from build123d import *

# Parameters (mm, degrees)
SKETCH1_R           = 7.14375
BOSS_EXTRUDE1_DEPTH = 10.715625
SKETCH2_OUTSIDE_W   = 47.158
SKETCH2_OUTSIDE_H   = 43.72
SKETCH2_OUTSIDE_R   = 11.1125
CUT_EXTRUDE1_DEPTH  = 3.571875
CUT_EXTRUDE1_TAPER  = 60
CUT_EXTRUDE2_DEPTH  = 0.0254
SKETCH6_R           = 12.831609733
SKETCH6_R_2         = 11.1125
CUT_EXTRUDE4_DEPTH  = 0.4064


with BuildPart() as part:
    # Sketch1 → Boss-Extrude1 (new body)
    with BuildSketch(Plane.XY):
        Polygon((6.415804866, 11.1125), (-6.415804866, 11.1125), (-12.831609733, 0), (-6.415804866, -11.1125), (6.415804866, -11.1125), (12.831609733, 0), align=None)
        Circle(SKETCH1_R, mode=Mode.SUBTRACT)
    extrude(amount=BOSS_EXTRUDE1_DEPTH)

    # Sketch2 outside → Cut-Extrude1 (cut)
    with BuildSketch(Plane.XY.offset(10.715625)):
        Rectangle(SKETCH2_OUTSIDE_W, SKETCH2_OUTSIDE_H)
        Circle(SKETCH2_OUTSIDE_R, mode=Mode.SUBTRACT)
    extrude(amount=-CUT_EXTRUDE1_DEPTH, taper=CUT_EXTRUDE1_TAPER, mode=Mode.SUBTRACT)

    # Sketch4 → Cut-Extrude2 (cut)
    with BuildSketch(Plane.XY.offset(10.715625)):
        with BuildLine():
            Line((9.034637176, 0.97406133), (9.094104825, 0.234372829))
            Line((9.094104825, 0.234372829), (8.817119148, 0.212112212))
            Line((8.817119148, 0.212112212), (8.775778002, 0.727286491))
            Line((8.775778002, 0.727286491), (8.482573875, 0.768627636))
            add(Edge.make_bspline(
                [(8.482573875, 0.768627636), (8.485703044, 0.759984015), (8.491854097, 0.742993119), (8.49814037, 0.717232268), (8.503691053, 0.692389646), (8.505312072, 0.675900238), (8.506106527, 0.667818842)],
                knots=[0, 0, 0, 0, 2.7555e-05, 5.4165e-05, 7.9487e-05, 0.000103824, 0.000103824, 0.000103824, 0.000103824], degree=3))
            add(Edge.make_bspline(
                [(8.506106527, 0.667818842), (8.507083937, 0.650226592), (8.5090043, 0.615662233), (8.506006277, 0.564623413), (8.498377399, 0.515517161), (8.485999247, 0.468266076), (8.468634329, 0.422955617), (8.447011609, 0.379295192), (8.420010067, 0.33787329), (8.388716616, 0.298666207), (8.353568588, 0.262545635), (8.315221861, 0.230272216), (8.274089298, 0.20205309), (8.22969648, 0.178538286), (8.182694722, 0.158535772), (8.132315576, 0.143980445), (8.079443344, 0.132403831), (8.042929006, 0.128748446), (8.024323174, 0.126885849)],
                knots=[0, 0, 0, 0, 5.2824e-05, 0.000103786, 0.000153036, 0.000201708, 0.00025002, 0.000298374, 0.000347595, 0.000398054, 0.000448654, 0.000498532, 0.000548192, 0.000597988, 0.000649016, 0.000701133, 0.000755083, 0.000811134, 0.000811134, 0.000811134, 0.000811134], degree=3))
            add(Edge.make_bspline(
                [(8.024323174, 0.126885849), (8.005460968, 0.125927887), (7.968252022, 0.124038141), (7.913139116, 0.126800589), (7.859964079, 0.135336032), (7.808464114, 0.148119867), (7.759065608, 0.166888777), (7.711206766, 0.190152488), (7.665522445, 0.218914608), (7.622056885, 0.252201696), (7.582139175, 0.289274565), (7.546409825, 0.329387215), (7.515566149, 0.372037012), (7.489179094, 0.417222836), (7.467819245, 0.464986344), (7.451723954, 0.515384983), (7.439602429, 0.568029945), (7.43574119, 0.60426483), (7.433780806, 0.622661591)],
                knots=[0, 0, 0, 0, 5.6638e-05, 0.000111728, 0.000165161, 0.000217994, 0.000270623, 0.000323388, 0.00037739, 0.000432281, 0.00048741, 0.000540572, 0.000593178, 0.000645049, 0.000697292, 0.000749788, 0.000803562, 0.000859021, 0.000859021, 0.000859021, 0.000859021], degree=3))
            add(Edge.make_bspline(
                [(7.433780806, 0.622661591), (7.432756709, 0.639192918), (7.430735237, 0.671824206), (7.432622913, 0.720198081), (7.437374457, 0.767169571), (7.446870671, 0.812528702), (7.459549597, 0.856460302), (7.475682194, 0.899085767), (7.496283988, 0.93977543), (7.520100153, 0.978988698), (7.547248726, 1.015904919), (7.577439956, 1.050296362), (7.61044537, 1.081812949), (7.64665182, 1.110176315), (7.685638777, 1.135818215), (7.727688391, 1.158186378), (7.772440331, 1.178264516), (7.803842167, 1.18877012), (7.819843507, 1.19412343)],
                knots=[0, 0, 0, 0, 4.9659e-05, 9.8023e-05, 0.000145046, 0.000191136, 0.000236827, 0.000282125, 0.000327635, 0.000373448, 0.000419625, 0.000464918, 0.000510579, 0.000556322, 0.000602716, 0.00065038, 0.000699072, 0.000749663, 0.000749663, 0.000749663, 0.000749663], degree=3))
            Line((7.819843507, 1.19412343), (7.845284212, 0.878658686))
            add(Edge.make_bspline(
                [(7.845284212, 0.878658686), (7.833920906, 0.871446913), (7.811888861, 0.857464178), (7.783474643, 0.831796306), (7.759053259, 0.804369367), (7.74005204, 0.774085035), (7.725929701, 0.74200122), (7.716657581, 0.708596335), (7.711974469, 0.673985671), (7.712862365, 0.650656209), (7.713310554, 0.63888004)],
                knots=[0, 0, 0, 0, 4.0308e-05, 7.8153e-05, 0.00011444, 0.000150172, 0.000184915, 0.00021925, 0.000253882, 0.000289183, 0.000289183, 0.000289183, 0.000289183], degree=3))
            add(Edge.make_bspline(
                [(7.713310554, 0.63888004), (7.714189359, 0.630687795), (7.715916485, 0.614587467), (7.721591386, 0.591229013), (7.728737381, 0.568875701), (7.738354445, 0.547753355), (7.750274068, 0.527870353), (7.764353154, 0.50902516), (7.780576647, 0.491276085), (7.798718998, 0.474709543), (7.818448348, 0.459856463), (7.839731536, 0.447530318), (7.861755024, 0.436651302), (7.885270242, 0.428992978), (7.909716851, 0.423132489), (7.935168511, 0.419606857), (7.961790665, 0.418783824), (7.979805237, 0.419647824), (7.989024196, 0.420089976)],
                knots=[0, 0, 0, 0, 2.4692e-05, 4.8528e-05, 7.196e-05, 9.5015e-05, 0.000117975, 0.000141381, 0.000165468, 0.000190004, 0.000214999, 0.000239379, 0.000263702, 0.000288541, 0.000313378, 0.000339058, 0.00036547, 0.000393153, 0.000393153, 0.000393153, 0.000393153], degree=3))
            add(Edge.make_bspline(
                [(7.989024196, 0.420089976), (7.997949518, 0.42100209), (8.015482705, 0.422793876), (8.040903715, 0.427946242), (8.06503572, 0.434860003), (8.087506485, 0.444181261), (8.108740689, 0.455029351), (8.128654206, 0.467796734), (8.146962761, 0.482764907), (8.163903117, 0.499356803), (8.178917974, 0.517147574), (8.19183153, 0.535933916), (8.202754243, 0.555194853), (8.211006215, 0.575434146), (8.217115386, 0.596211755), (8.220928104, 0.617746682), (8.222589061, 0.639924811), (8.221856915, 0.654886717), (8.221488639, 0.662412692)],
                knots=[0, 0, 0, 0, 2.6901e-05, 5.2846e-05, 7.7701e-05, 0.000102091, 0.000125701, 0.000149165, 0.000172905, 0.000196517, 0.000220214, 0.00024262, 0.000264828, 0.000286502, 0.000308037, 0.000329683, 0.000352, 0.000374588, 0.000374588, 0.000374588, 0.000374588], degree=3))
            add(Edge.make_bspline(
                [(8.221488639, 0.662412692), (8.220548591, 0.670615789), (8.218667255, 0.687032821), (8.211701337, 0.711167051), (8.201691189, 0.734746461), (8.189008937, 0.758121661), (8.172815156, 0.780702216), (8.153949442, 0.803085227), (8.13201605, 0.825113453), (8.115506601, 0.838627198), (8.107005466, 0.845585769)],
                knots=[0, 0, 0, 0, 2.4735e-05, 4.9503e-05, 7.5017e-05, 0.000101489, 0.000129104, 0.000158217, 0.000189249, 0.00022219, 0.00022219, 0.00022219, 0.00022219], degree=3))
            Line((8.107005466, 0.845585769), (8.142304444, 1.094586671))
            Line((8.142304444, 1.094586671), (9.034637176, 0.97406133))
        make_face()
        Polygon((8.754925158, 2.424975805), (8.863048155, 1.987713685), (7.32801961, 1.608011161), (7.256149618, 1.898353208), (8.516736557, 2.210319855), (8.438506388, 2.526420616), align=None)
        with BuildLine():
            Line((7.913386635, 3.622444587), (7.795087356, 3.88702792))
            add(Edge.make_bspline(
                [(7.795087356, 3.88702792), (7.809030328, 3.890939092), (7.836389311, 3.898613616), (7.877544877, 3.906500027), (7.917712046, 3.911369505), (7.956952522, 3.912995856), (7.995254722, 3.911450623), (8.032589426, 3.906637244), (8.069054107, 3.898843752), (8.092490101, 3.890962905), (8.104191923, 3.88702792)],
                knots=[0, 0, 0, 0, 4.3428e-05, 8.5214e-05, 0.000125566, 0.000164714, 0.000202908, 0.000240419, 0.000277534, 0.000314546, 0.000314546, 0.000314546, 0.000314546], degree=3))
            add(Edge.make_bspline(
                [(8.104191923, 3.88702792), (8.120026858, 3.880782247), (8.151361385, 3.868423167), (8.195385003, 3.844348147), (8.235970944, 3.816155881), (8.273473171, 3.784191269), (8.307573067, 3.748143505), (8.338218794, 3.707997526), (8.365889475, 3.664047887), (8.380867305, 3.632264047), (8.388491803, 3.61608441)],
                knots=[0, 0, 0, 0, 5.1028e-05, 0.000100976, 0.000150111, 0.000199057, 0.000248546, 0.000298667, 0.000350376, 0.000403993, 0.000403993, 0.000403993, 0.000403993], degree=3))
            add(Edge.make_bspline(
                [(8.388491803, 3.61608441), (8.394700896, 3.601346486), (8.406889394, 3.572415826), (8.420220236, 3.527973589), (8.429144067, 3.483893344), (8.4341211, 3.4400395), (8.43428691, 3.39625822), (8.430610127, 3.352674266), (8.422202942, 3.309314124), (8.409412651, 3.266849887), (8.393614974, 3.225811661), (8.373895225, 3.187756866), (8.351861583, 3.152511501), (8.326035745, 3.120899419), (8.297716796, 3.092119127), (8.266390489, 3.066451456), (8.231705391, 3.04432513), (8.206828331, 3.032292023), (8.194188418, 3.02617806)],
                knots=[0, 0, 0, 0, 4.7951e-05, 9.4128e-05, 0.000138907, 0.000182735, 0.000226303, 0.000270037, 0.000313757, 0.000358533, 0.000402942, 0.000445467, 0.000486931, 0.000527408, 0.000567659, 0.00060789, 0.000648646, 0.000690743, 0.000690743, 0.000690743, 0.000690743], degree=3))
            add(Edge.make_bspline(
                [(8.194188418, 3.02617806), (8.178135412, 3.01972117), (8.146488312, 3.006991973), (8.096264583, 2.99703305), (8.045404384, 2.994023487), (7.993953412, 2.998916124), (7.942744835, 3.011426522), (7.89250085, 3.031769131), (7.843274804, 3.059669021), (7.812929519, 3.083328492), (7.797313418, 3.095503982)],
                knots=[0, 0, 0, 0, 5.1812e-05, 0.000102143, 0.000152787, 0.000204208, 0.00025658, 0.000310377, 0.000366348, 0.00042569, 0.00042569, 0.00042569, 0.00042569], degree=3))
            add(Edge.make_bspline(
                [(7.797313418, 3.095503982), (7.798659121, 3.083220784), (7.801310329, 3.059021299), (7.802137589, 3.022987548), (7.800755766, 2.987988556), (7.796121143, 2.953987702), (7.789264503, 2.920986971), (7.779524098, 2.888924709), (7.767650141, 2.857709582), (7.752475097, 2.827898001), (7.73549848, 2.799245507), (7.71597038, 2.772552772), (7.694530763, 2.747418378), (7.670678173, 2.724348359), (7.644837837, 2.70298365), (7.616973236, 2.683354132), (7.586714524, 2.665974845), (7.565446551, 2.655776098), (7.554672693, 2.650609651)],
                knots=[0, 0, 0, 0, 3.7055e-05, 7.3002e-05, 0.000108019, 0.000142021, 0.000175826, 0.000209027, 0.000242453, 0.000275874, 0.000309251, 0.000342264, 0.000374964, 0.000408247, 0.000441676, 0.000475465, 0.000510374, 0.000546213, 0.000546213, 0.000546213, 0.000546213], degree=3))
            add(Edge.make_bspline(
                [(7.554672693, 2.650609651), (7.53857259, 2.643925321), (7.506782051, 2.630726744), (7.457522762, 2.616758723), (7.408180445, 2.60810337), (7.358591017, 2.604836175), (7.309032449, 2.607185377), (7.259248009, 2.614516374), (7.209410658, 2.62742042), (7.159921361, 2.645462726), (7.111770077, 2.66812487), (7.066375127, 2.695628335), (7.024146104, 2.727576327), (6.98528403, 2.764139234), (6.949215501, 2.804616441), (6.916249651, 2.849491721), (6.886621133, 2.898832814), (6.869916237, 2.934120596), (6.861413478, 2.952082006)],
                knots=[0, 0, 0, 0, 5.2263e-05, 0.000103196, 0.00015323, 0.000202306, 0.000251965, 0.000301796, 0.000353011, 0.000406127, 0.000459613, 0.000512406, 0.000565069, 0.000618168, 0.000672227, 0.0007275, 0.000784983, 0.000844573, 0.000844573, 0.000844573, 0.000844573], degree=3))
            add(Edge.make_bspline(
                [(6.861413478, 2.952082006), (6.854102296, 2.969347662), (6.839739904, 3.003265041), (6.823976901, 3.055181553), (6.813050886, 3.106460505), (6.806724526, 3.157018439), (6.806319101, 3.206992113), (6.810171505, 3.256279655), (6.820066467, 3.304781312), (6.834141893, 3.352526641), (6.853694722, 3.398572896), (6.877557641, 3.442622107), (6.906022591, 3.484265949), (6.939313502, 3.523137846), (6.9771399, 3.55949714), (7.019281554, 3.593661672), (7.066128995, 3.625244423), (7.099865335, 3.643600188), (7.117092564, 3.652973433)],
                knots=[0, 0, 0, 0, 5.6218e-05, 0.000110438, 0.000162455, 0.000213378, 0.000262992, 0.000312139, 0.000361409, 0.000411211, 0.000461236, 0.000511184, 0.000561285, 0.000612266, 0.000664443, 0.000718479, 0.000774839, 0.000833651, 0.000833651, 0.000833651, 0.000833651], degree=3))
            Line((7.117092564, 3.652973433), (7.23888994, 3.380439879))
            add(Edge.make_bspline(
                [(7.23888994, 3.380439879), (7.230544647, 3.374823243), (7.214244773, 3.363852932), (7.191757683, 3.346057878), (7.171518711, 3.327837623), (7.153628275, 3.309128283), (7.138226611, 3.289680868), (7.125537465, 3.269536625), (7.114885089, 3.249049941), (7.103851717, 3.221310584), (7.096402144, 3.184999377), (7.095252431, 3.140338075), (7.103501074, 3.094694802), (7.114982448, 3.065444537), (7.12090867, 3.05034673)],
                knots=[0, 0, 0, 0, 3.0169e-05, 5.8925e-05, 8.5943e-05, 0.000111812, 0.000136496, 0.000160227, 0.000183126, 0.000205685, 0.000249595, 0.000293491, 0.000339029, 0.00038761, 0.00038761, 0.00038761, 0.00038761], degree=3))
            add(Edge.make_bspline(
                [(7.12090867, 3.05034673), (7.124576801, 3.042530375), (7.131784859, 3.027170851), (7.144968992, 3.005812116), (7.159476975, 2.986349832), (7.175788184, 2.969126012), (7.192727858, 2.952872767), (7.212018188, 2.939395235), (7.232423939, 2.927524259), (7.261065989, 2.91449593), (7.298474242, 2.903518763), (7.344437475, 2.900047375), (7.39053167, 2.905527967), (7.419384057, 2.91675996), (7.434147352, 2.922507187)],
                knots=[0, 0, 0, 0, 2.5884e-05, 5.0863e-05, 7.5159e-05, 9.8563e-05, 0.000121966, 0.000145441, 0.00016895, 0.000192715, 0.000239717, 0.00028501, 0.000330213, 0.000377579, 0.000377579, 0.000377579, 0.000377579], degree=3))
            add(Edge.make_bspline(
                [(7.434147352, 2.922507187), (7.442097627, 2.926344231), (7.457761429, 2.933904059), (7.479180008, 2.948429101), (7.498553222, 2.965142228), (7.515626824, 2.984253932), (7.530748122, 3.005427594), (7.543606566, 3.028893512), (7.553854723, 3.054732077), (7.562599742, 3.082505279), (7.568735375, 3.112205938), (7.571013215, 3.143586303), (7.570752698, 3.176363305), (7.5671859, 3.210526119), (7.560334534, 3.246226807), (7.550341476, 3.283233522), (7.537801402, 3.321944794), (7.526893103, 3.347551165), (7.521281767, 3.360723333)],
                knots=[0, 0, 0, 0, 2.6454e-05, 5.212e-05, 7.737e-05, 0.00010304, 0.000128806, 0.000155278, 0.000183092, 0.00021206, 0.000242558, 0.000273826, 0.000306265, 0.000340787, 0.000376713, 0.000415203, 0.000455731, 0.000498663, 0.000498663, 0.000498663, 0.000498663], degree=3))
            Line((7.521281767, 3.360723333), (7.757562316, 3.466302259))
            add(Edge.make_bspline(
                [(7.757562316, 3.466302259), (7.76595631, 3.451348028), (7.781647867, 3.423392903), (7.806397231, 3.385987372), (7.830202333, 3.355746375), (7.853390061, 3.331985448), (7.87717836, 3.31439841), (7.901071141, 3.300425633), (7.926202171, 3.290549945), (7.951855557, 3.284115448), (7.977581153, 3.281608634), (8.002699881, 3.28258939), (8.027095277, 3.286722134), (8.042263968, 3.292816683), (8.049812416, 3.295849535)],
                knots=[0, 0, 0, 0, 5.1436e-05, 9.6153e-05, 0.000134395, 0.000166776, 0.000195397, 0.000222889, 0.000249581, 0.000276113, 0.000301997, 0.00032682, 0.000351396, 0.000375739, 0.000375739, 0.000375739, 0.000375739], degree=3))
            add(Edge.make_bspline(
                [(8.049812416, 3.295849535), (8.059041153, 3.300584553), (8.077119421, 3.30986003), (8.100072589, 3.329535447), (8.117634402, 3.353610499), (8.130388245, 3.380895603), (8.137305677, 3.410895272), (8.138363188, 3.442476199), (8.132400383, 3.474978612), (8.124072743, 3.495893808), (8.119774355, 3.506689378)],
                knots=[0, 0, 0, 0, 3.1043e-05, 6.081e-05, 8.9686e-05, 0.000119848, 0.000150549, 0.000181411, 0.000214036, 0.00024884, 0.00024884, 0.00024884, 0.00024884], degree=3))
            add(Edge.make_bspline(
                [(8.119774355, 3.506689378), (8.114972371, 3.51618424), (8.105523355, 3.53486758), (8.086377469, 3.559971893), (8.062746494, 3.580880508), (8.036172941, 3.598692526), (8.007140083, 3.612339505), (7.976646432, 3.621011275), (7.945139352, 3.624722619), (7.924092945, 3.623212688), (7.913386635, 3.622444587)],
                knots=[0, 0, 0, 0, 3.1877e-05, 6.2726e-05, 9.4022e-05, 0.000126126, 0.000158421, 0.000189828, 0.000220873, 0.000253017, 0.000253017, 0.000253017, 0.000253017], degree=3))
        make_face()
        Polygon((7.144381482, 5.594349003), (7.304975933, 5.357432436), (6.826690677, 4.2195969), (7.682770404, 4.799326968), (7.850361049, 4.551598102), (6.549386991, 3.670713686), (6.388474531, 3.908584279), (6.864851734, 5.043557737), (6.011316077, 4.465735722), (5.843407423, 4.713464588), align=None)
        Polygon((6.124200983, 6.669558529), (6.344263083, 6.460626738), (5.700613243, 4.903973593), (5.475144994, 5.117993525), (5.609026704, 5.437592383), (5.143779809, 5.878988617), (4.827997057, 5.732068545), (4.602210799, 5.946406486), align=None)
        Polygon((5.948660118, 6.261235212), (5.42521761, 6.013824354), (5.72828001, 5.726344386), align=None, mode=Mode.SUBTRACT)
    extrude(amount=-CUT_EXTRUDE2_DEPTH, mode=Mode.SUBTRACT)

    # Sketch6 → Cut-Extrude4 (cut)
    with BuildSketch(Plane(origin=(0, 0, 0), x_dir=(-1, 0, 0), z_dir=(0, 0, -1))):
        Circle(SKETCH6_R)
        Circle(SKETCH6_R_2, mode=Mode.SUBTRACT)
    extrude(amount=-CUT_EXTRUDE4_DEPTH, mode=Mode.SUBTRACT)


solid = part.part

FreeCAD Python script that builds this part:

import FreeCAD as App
import Part
import Sketcher
Q = App.Units.Quantity


def add_polygon(sketch, points):
    """Adds a closed chain of lines whose ends are joined by coincident constraints."""
    first, n = sketch.GeometryCount, len(points)
    for a, b in zip(points, points[1:] + points[:1]):
        sketch.addGeometry(Part.LineSegment(App.Vector(*a, 0), App.Vector(*b, 0)), False)
    for i in range(n):
        sketch.addConstraint(Sketcher.Constraint("Coincident", first + i, 2, first + (i + 1) % n, 1))

doc = App.newDocument("Part")
body = doc.addObject("PartDesign::Body", "Body")

sketch1 = body.newObject("Sketcher::SketchObject", "Sketch")
sketch1.AttachmentSupport = (doc.getObject("XY_Plane"), [""])
sketch1.MapMode = "FlatFace"
add_polygon(sketch1, [(6, 11), (-6, 11), (-13, 0), (-6, -11), (6, -11), (13, 0)])
sketch1.addGeometry(Part.Circle(App.Vector(0, 0, 0), App.Vector(0, 0, 1), 7), False)
sketch1.addConstraint([
    Sketcher.Constraint("Horizontal", 0),
    Sketcher.Constraint("Horizontal", 3),
    Sketcher.Constraint("Coincident", 6, 3, -1, 1),
    Sketcher.Constraint("Symmetric", 0, 2, 3, 2, -1, 1),
    Sketcher.Constraint("Symmetric", 1, 2, 4, 2, -1, 1),
    Sketcher.Constraint("PointOnObject", 1, 2, -1),
    Sketcher.Constraint("Parallel", 2, 5),
    Sketcher.Constraint("Vertical", 0, 2, 2, 2),
    Sketcher.Constraint("Diameter", 6, Q("0.5625 in")),
    Sketcher.Constraint("Angle", 1, Q("-120 deg")),
    Sketcher.Constraint("DistanceY", -1, 1, 0, 2, Q("0.4375 in")),
    Sketcher.Constraint("DistanceX", 0, 2, 0, 1, 12.83161),
])
pad1 = body.newObject("PartDesign::Pad", "Pad")
pad1.Profile = sketch1
pad1.Length = Q("0.421875 in")

sketch2 = body.newObject("Sketcher::SketchObject", "Sketch001")
sketch2.AttachmentSupport = (doc.getObject("XY_Plane"), [""])
sketch2.MapMode = "FlatFace"
sketch2.AttachmentOffset = App.Placement(App.Vector(0, 0, 0.421875 * 25.4), App.Rotation())
add_polygon(sketch2, [(-24, 22), (-24, -22), (24, -22), (24, 22)])
sketch2.addGeometry(Part.Circle(App.Vector(0, 0, 0), App.Vector(0, 0, 1), 11), False)
sketch2.addConstraint([
    Sketcher.Constraint("Vertical", 0),
    Sketcher.Constraint("Horizontal", 1),
    Sketcher.Constraint("Vertical", 2),
    Sketcher.Constraint("Horizontal", 3),
    Sketcher.Constraint("Coincident", 4, 3, -1, 1),
    Sketcher.Constraint("Symmetric", 0, 2, 2, 2, -1, 1),
    Sketcher.Constraint("Diameter", 4, Q("0.875 in")),
    Sketcher.Constraint("DistanceX", 1, 1, 1, 2, 47.158),
    Sketcher.Constraint("DistanceY", 0, 2, 0, 1, 43.72),
])
pocket1 = body.newObject("PartDesign::Pocket", "Pocket")
pocket1.Profile = sketch2
pocket1.Length = Q("0.140625 in")
pocket1.TaperAngle = 60

sketch3 = body.newObject("Sketcher::SketchObject", "Sketch002")
sketch3.AttachmentSupport = (doc.getObject("XY_Plane"), [""])
sketch3.MapMode = "FlatFace"
sketch3.AttachmentOffset = App.Placement(App.Vector(0, 0, 0.421875 * 25.4), App.Rotation())
sketch3.addGeometry(Part.LineSegment(App.Vector(9.094105, 0.234373, 0), App.Vector(9.034637, 0.974061, 0)), False)
sketch3.addGeometry(Part.LineSegment(App.Vector(9.034637, 0.974061, 0), App.Vector(8.142304, 1.094587, 0)), False)
sketch3.addGeometry(Part.LineSegment(App.Vector(8.142304, 1.094587, 0), App.Vector(8.107005, 0.845586, 0)), False)
sketch3.addGeometry(Part.BSplineCurve([App.Vector(8.221489, 0.662413, 0), App.Vector(8.220549, 0.670616, 0), App.Vector(8.218667, 0.687033, 0), App.Vector(8.211701, 0.711167, 0), App.Vector(8.201691, 0.734746, 0), App.Vector(8.189009, 0.758122, 0), App.Vector(8.172815, 0.780702, 0), App.Vector(8.153949, 0.803085, 0), App.Vector(8.132016, 0.825113, 0), App.Vector(8.115507, 0.838627, 0), App.Vector(8.107005, 0.845586, 0)], [4, 1, 1, 1, 1, 1, 1, 1, 4], [0, 0.000024735, 0.000049503, 0.000075017, 0.000101489, 0.000129104, 0.000158217, 0.000189249, 0.00022219], False, 3, [1, 1, 1, 1, 1, 1, 1, 1, 1, 1, 1], False), False)
sketch3.addGeometry(Part.BSplineCurve([App.Vector(7.989024, 0.42009, 0), App.Vector(7.99795, 0.421002, 0), App.Vector(8.015483, 0.422794, 0), App.Vector(8.040904, 0.427946, 0), App.Vector(8.065036, 0.43486, 0), App.Vector(8.087506, 0.444181, 0), App.Vector(8.108741, 0.455029, 0), App.Vector(8.128654, 0.467797, 0), App.Vector(8.146963, 0.482765, 0), App.Vector(8.163903, 0.499357, 0), App.Vector(8.178918, 0.517148, 0), App.Vector(8.191832, 0.535934, 0), App.Vector(8.202754, 0.555195, 0), App.Vector(8.211006, 0.575434, 0), App.Vector(8.217115, 0.596212, 0), App.Vector(8.220928, 0.617747, 0), App.Vector(8.222589, 0.639925, 0), App.Vector(8.221857, 0.654887, 0), App.Vector(8.221489, 0.662413, 0)], [4, 1, 1, 1, 1, 1, 1, 1, 1, 1, 1, 1, 1, 1, 1, 1, 4], [0, 0.000026901, 0.000052846, 0.000077701, 0.000102091, 0.000125701, 0.000149165, 0.000172905, 0.000196517, 0.000220214, 0.00024262, 0.000264828, 0.000286502, 0.000308037, 0.000329683, 0.000352, 0.000374588], False, 3, [1, 1, 1, 1, 1, 1, 1, 1, 1, 1, 1, 1, 1, 1, 1, 1, 1, 1, 1], False), False)
sketch3.addGeometry(Part.BSplineCurve([App.Vector(7.713311, 0.63888, 0), App.Vector(7.714189, 0.630688, 0), App.Vector(7.715916, 0.614587, 0), App.Vector(7.721591, 0.591229, 0), App.Vector(7.728737, 0.568876, 0), App.Vector(7.738354, 0.547753, 0), App.Vector(7.750274, 0.52787, 0), App.Vector(7.764353, 0.509025, 0), App.Vector(7.780577, 0.491276, 0), App.Vector(7.798719, 0.47471, 0), App.Vector(7.818448, 0.459856, 0), App.Vector(7.839732, 0.44753, 0), App.Vector(7.861755, 0.436651, 0), App.Vector(7.88527, 0.428993, 0), App.Vector(7.909717, 0.423132, 0), App.Vector(7.935169, 0.419607, 0), App.Vector(7.961791, 0.418784, 0), App.Vector(7.979805, 0.419648, 0), App.Vector(7.989024, 0.42009, 0)], [4, 1, 1, 1, 1, 1, 1, 1, 1, 1, 1, 1, 1, 1, 1, 1, 4], [0, 0.000024692, 0.000048528, 0.00007196, 0.000095015, 0.000117975, 0.000141381, 0.000165468, 0.000190004, 0.000214999, 0.000239379, 0.000263702, 0.000288541, 0.000313378, 0.000339058, 0.00036547, 0.000393153], False, 3, [1, 1, 1, 1, 1, 1, 1, 1, 1, 1, 1, 1, 1, 1, 1, 1, 1, 1, 1], False), False)
sketch3.addGeometry(Part.BSplineCurve([App.Vector(7.845284, 0.878659, 0), App.Vector(7.833921, 0.871447, 0), App.Vector(7.811889, 0.857464, 0), App.Vector(7.783475, 0.831796, 0), App.Vector(7.759053, 0.804369, 0), App.Vector(7.740052, 0.774085, 0), App.Vector(7.72593, 0.742001, 0), App.Vector(7.716658, 0.708596, 0), App.Vector(7.711974, 0.673986, 0), App.Vector(7.712862, 0.650656, 0), App.Vector(7.713311, 0.63888, 0)], [4, 1, 1, 1, 1, 1, 1, 1, 4], [0, 0.000040308, 0.000078153, 0.00011444, 0.000150172, 0.000184915, 0.00021925, 0.000253882, 0.000289183], False, 3, [1, 1, 1, 1, 1, 1, 1, 1, 1, 1, 1], False), False)
sketch3.addGeometry(Part.LineSegment(App.Vector(7.845284, 0.878659, 0), App.Vector(7.819844, 1.194123, 0)), False)
sketch3.addGeometry(Part.BSplineCurve([App.Vector(7.433781, 0.622662, 0), App.Vector(7.432757, 0.639193, 0), App.Vector(7.430735, 0.671824, 0), App.Vector(7.432623, 0.720198, 0), App.Vector(7.437374, 0.76717, 0), App.Vector(7.446871, 0.812529, 0), App.Vector(7.45955, 0.85646, 0), App.Vector(7.475682, 0.899086, 0), App.Vector(7.496284, 0.939775, 0), App.Vector(7.5201, 0.978989, 0), App.Vector(7.547249, 1.015905, 0), App.Vector(7.57744, 1.050296, 0), App.Vector(7.610445, 1.081813, 0), App.Vector(7.646652, 1.110176, 0), App.Vector(7.685639, 1.135818, 0), App.Vector(7.727688, 1.158186, 0), App.Vector(7.77244, 1.178265, 0), App.Vector(7.803842, 1.18877, 0), App.Vector(7.819844, 1.194123, 0)], [4, 1, 1, 1, 1, 1, 1, 1, 1, 1, 1, 1, 1, 1, 1, 1, 4], [0, 0.000049659, 0.000098023, 0.000145046, 0.000191136, 0.000236827, 0.000282125, 0.000327635, 0.000373448, 0.000419625, 0.000464918, 0.000510579, 0.000556322, 0.000602716, 0.00065038, 0.000699072, 0.000749663], False, 3, [1, 1, 1, 1, 1, 1, 1, 1, 1, 1, 1, 1, 1, 1, 1, 1, 1, 1, 1], False), False)
sketch3.addGeometry(Part.BSplineCurve([App.Vector(8.024323, 0.126886, 0), App.Vector(8.005461, 0.125928, 0), App.Vector(7.968252, 0.124038, 0), App.Vector(7.913139, 0.126801, 0), App.Vector(7.859964, 0.135336, 0), App.Vector(7.808464, 0.14812, 0), App.Vector(7.759066, 0.166889, 0), App.Vector(7.711207, 0.190152, 0), App.Vector(7.665522, 0.218915, 0), App.Vector(7.622057, 0.252202, 0), App.Vector(7.582139, 0.289275, 0), App.Vector(7.54641, 0.329387, 0), App.Vector(7.515566, 0.372037, 0), App.Vector(7.489179, 0.417223, 0), App.Vector(7.467819, 0.464986, 0), App.Vector(7.451724, 0.515385, 0), App.Vector(7.439602, 0.56803, 0), App.Vector(7.435741, 0.604265, 0), App.Vector(7.433781, 0.622662, 0)], [4, 1, 1, 1, 1, 1, 1, 1, 1, 1, 1, 1, 1, 1, 1, 1, 4], [0, 0.000056638, 0.000111728, 0.000165161, 0.000217994, 0.000270623, 0.000323388, 0.00037739, 0.000432281, 0.00048741, 0.000540572, 0.000593178, 0.000645049, 0.000697292, 0.000749788, 0.000803562, 0.000859021], False, 3, [1, 1, 1, 1, 1, 1, 1, 1, 1, 1, 1, 1, 1, 1, 1, 1, 1, 1, 1], False), False)
sketch3.addGeometry(Part.BSplineCurve([App.Vector(8.506107, 0.667819, 0), App.Vector(8.507084, 0.650227, 0), App.Vector(8.509004, 0.615662, 0), App.Vector(8.506006, 0.564623, 0), App.Vector(8.498377, 0.515517, 0), App.Vector(8.485999, 0.468266, 0), App.Vector(8.468634, 0.422956, 0), App.Vector(8.447012, 0.379295, 0), App.Vector(8.42001, 0.337873, 0), App.Vector(8.388717, 0.298666, 0), App.Vector(8.353569, 0.262546, 0), App.Vector(8.315222, 0.230272, 0), App.Vector(8.274089, 0.202053, 0), App.Vector(8.229696, 0.178538, 0), App.Vector(8.182695, 0.158536, 0), App.Vector(8.132316, 0.14398, 0), App.Vector(8.079443, 0.132404, 0), App.Vector(8.042929, 0.128748, 0), App.Vector(8.024323, 0.126886, 0)], [4, 1, 1, 1, 1, 1, 1, 1, 1, 1, 1, 1, 1, 1, 1, 1, 4], [0, 0.000052824, 0.000103786, 0.000153036, 0.000201708, 0.00025002, 0.000298374, 0.000347595, 0.000398054, 0.000448654, 0.000498532, 0.000548192, 0.000597988, 0.000649016, 0.000701133, 0.000755083, 0.000811134], False, 3, [1, 1, 1, 1, 1, 1, 1, 1, 1, 1, 1, 1, 1, 1, 1, 1, 1, 1, 1], False), False)
sketch3.addGeometry(Part.BSplineCurve([App.Vector(8.482574, 0.768628, 0), App.Vector(8.485703, 0.759984, 0), App.Vector(8.491854, 0.742993, 0), App.Vector(8.49814, 0.717232, 0), App.Vector(8.503691, 0.69239, 0), App.Vector(8.505312, 0.6759, 0), App.Vector(8.506107, 0.667819, 0)], [4, 1, 1, 1, 4], [0, 0.000027555, 0.000054165, 0.000079487, 0.000103824], False, 3, [1, 1, 1, 1, 1, 1, 1], False), False)
sketch3.addGeometry(Part.LineSegment(App.Vector(8.482574, 0.768628, 0), App.Vector(8.775778, 0.727286, 0)), False)
sketch3.addGeometry(Part.LineSegment(App.Vector(8.775778, 0.727286, 0), App.Vector(8.817119, 0.212112, 0)), False)
sketch3.addGeometry(Part.LineSegment(App.Vector(8.817119, 0.212112, 0), App.Vector(9.094105, 0.234373, 0)), False)
add_polygon(sketch3, [(8.863048, 1.987714), (8.754925, 2.424976), (8.438506, 2.526421), (8.516737, 2.21032), (7.25615, 1.898353), (7.32802, 1.608011)])
sketch3.addGeometry(Part.LineSegment(App.Vector(7.795087, 3.887028, 0), App.Vector(7.913387, 3.622445, 0)), False)
sketch3.addGeometry(Part.BSplineCurve([App.Vector(8.119774, 3.506689, 0), App.Vector(8.114972, 3.516184, 0), App.Vector(8.105523, 3.534868, 0), App.Vector(8.086377, 3.559972, 0), App.Vector(8.062746, 3.580881, 0), App.Vector(8.036173, 3.598693, 0), App.Vector(8.00714, 3.61234, 0), App.Vector(7.976646, 3.621011, 0), App.Vector(7.945139, 3.624723, 0), App.Vector(7.924093, 3.623213, 0), App.Vector(7.913387, 3.622445, 0)], [4, 1, 1, 1, 1, 1, 1, 1, 4], [0, 0.000031877, 0.000062726, 0.000094022, 0.000126126, 0.000158421, 0.000189828, 0.000220873, 0.000253017], False, 3, [1, 1, 1, 1, 1, 1, 1, 1, 1, 1, 1], False), False)
sketch3.addGeometry(Part.BSplineCurve([App.Vector(8.049812, 3.29585, 0), App.Vector(8.059041, 3.300585, 0), App.Vector(8.077119, 3.30986, 0), App.Vector(8.100073, 3.329535, 0), App.Vector(8.117634, 3.35361, 0), App.Vector(8.130388, 3.380896, 0), App.Vector(8.137306, 3.410895, 0), App.Vector(8.138363, 3.442476, 0), App.Vector(8.1324, 3.474979, 0), App.Vector(8.124073, 3.495894, 0), App.Vector(8.119774, 3.506689, 0)], [4, 1, 1, 1, 1, 1, 1, 1, 4], [0, 0.000031043, 0.00006081, 0.000089686, 0.000119848, 0.000150549, 0.000181411, 0.000214036, 0.00024884], False, 3, [1, 1, 1, 1, 1, 1, 1, 1, 1, 1, 1], False), False)
sketch3.addGeometry(Part.BSplineCurve([App.Vector(7.757562, 3.466302, 0), App.Vector(7.765956, 3.451348, 0), App.Vector(7.781648, 3.423393, 0), App.Vector(7.806397, 3.385987, 0), App.Vector(7.830202, 3.355746, 0), App.Vector(7.85339, 3.331985, 0), App.Vector(7.877178, 3.314398, 0), App.Vector(7.901071, 3.300426, 0), App.Vector(7.926202, 3.29055, 0), App.Vector(7.951856, 3.284115, 0), App.Vector(7.977581, 3.281609, 0), App.Vector(8.0027, 3.282589, 0), App.Vector(8.027095, 3.286722, 0), App.Vector(8.042264, 3.292817, 0), App.Vector(8.049812, 3.29585, 0)], [4, 1, 1, 1, 1, 1, 1, 1, 1, 1, 1, 1, 4], [0, 0.000051436, 0.000096153, 0.000134395, 0.000166776, 0.000195397, 0.000222889, 0.000249581, 0.000276113, 0.000301997, 0.00032682, 0.000351396, 0.000375739], False, 3, [1, 1, 1, 1, 1, 1, 1, 1, 1, 1, 1, 1, 1, 1, 1], False), False)
sketch3.addGeometry(Part.LineSegment(App.Vector(7.757562, 3.466302, 0), App.Vector(7.521282, 3.360723, 0)), False)
sketch3.addGeometry(Part.BSplineCurve([App.Vector(7.434147, 2.922507, 0), App.Vector(7.442098, 2.926344, 0), App.Vector(7.457761, 2.933904, 0), App.Vector(7.47918, 2.948429, 0), App.Vector(7.498553, 2.965142, 0), App.Vector(7.515627, 2.984254, 0), App.Vector(7.530748, 3.005428, 0), App.Vector(7.543607, 3.028894, 0), App.Vector(7.553855, 3.054732, 0), App.Vector(7.5626, 3.082505, 0), App.Vector(7.568735, 3.112206, 0), App.Vector(7.571013, 3.143586, 0), App.Vector(7.570753, 3.176363, 0), App.Vector(7.567186, 3.210526, 0), App.Vector(7.560335, 3.246227, 0), App.Vector(7.550341, 3.283234, 0), App.Vector(7.537801, 3.321945, 0), App.Vector(7.526893, 3.347551, 0), App.Vector(7.521282, 3.360723, 0)], [4, 1, 1, 1, 1, 1, 1, 1, 1, 1, 1, 1, 1, 1, 1, 1, 4], [0, 0.000026454, 0.00005212, 0.00007737, 0.00010304, 0.000128806, 0.000155278, 0.000183092, 0.00021206, 0.000242558, 0.000273826, 0.000306265, 0.000340787, 0.000376713, 0.000415203, 0.000455731, 0.000498663], False, 3, [1, 1, 1, 1, 1, 1, 1, 1, 1, 1, 1, 1, 1, 1, 1, 1, 1, 1, 1], False), False)
sketch3.addGeometry(Part.BSplineCurve([App.Vector(7.120909, 3.050347, 0), App.Vector(7.124577, 3.04253, 0), App.Vector(7.131785, 3.027171, 0), App.Vector(7.144969, 3.005812, 0), App.Vector(7.159477, 2.98635, 0), App.Vector(7.175788, 2.969126, 0), App.Vector(7.192728, 2.952873, 0), App.Vector(7.212018, 2.939395, 0), App.Vector(7.232424, 2.927524, 0), App.Vector(7.261066, 2.914496, 0), App.Vector(7.298474, 2.903519, 0), App.Vector(7.344437, 2.900047, 0), App.Vector(7.390532, 2.905528, 0), App.Vector(7.419384, 2.91676, 0), App.Vector(7.434147, 2.922507, 0)], [4, 1, 1, 1, 1, 1, 1, 1, 1, 1, 1, 1, 4], [0, 0.000025884, 0.000050863, 0.000075159, 0.000098563, 0.000121966, 0.000145441, 0.00016895, 0.000192715, 0.000239717, 0.00028501, 0.000330213, 0.000377579], False, 3, [1, 1, 1, 1, 1, 1, 1, 1, 1, 1, 1, 1, 1, 1, 1], False), False)
sketch3.addGeometry(Part.BSplineCurve([App.Vector(7.23889, 3.38044, 0), App.Vector(7.230545, 3.374823, 0), App.Vector(7.214245, 3.363853, 0), App.Vector(7.191758, 3.346058, 0), App.Vector(7.171519, 3.327838, 0), App.Vector(7.153628, 3.309128, 0), App.Vector(7.138227, 3.289681, 0), App.Vector(7.125537, 3.269537, 0), App.Vector(7.114885, 3.24905, 0), App.Vector(7.103852, 3.221311, 0), App.Vector(7.096402, 3.184999, 0), App.Vector(7.095252, 3.140338, 0), App.Vector(7.103501, 3.094695, 0), App.Vector(7.114982, 3.065445, 0), App.Vector(7.120909, 3.050347, 0)], [4, 1, 1, 1, 1, 1, 1, 1, 1, 1, 1, 1, 4], [0, 0.000030169, 0.000058925, 0.000085943, 0.000111812, 0.000136496, 0.000160227, 0.000183126, 0.000205685, 0.000249595, 0.000293491, 0.000339029, 0.00038761], False, 3, [1, 1, 1, 1, 1, 1, 1, 1, 1, 1, 1, 1, 1, 1, 1], False), False)
sketch3.addGeometry(Part.LineSegment(App.Vector(7.23889, 3.38044, 0), App.Vector(7.117093, 3.652973, 0)), False)
sketch3.addGeometry(Part.BSplineCurve([App.Vector(6.861413, 2.952082, 0), App.Vector(6.854102, 2.969348, 0), App.Vector(6.83974, 3.003265, 0), App.Vector(6.823977, 3.055182, 0), App.Vector(6.813051, 3.106461, 0), App.Vector(6.806725, 3.157018, 0), App.Vector(6.806319, 3.206992, 0), App.Vector(6.810172, 3.25628, 0), App.Vector(6.820066, 3.304781, 0), App.Vector(6.834142, 3.352527, 0), App.Vector(6.853695, 3.398573, 0), App.Vector(6.877558, 3.442622, 0), App.Vector(6.906023, 3.484266, 0), App.Vector(6.939314, 3.523138, 0), App.Vector(6.97714, 3.559497, 0), App.Vector(7.019282, 3.593662, 0), App.Vector(7.066129, 3.625244, 0), App.Vector(7.099865, 3.6436, 0), App.Vector(7.117093, 3.652973, 0)], [4, 1, 1, 1, 1, 1, 1, 1, 1, 1, 1, 1, 1, 1, 1, 1, 4], [0, 0.000056218, 0.000110438, 0.000162455, 0.000213378, 0.000262992, 0.000312139, 0.000361409, 0.000411211, 0.000461236, 0.000511184, 0.000561285, 0.000612266, 0.000664443, 0.000718479, 0.000774839, 0.000833651], False, 3, [1, 1, 1, 1, 1, 1, 1, 1, 1, 1, 1, 1, 1, 1, 1, 1, 1, 1, 1], False), False)
sketch3.addGeometry(Part.BSplineCurve([App.Vector(7.554673, 2.65061, 0), App.Vector(7.538573, 2.643925, 0), App.Vector(7.506782, 2.630727, 0), App.Vector(7.457523, 2.616759, 0), App.Vector(7.40818, 2.608103, 0), App.Vector(7.358591, 2.604836, 0), App.Vector(7.309032, 2.607185, 0), App.Vector(7.259248, 2.614516, 0), App.Vector(7.209411, 2.62742, 0), App.Vector(7.159921, 2.645463, 0), App.Vector(7.11177, 2.668125, 0), App.Vector(7.066375, 2.695628, 0), App.Vector(7.024146, 2.727576, 0), App.Vector(6.985284, 2.764139, 0), App.Vector(6.949216, 2.804616, 0), App.Vector(6.91625, 2.849492, 0), App.Vector(6.886621, 2.898833, 0), App.Vector(6.869916, 2.934121, 0), App.Vector(6.861413, 2.952082, 0)], [4, 1, 1, 1, 1, 1, 1, 1, 1, 1, 1, 1, 1, 1, 1, 1, 4], [0, 0.000052263, 0.000103196, 0.00015323, 0.000202306, 0.000251965, 0.000301796, 0.000353011, 0.000406127, 0.000459613, 0.000512406, 0.000565069, 0.000618168, 0.000672227, 0.0007275, 0.000784983, 0.000844573], False, 3, [1, 1, 1, 1, 1, 1, 1, 1, 1, 1, 1, 1, 1, 1, 1, 1, 1, 1, 1], False), False)
sketch3.addGeometry(Part.BSplineCurve([App.Vector(7.797313, 3.095504, 0), App.Vector(7.798659, 3.083221, 0), App.Vector(7.80131, 3.059021, 0), App.Vector(7.802138, 3.022988, 0), App.Vector(7.800756, 2.987989, 0), App.Vector(7.796121, 2.953988, 0), App.Vector(7.789265, 2.920987, 0), App.Vector(7.779524, 2.888925, 0), App.Vector(7.76765, 2.85771, 0), App.Vector(7.752475, 2.827898, 0), App.Vector(7.735498, 2.799246, 0), App.Vector(7.71597, 2.772553, 0), App.Vector(7.694531, 2.747418, 0), App.Vector(7.670678, 2.724348, 0), App.Vector(7.644838, 2.702984, 0), App.Vector(7.616973, 2.683354, 0), App.Vector(7.586715, 2.665975, 0), App.Vector(7.565447, 2.655776, 0), App.Vector(7.554673, 2.65061, 0)], [4, 1, 1, 1, 1, 1, 1, 1, 1, 1, 1, 1, 1, 1, 1, 1, 4], [0, 0.000037055, 0.000073002, 0.000108019, 0.000142021, 0.000175826, 0.000209027, 0.000242453, 0.000275874, 0.000309251, 0.000342264, 0.000374964, 0.000408247, 0.000441676, 0.000475465, 0.000510374, 0.000546213], False, 3, [1, 1, 1, 1, 1, 1, 1, 1, 1, 1, 1, 1, 1, 1, 1, 1, 1, 1, 1], False), False)
sketch3.addGeometry(Part.BSplineCurve([App.Vector(8.194188, 3.026178, 0), App.Vector(8.178135, 3.019721, 0), App.Vector(8.146488, 3.006992, 0), App.Vector(8.096265, 2.997033, 0), App.Vector(8.045404, 2.994023, 0), App.Vector(7.993953, 2.998916, 0), App.Vector(7.942745, 3.011427, 0), App.Vector(7.892501, 3.031769, 0), App.Vector(7.843275, 3.059669, 0), App.Vector(7.81293, 3.083328, 0), App.Vector(7.797313, 3.095504, 0)], [4, 1, 1, 1, 1, 1, 1, 1, 4], [0, 0.000051812, 0.000102143, 0.000152787, 0.000204208, 0.00025658, 0.000310377, 0.000366348, 0.00042569], False, 3, [1, 1, 1, 1, 1, 1, 1, 1, 1, 1, 1], False), False)
sketch3.addGeometry(Part.BSplineCurve([App.Vector(8.388492, 3.616084, 0), App.Vector(8.394701, 3.601346, 0), App.Vector(8.406889, 3.572416, 0), App.Vector(8.42022, 3.527974, 0), App.Vector(8.429144, 3.483893, 0), App.Vector(8.434121, 3.44004, 0), App.Vector(8.434287, 3.396258, 0), App.Vector(8.43061, 3.352674, 0), App.Vector(8.422203, 3.309314, 0), App.Vector(8.409413, 3.26685, 0), App.Vector(8.393615, 3.225812, 0), App.Vector(8.373895, 3.187757, 0), App.Vector(8.351862, 3.152512, 0), App.Vector(8.326036, 3.120899, 0), App.Vector(8.297717, 3.092119, 0), App.Vector(8.26639, 3.066451, 0), App.Vector(8.231705, 3.044325, 0), App.Vector(8.206828, 3.032292, 0), App.Vector(8.194188, 3.026178, 0)], [4, 1, 1, 1, 1, 1, 1, 1, 1, 1, 1, 1, 1, 1, 1, 1, 4], [0, 0.000047951, 0.000094128, 0.000138907, 0.000182735, 0.000226303, 0.000270037, 0.000313757, 0.000358533, 0.000402942, 0.000445467, 0.000486931, 0.000527408, 0.000567659, 0.00060789, 0.000648646, 0.000690743], False, 3, [1, 1, 1, 1, 1, 1, 1, 1, 1, 1, 1, 1, 1, 1, 1, 1, 1, 1, 1], False), False)
sketch3.addGeometry(Part.BSplineCurve([App.Vector(8.104192, 3.887028, 0), App.Vector(8.120027, 3.880782, 0), App.Vector(8.151361, 3.868423, 0), App.Vector(8.195385, 3.844348, 0), App.Vector(8.235971, 3.816156, 0), App.Vector(8.273473, 3.784191, 0), App.Vector(8.307573, 3.748144, 0), App.Vector(8.338219, 3.707998, 0), App.Vector(8.365889, 3.664048, 0), App.Vector(8.380867, 3.632264, 0), App.Vector(8.388492, 3.616084, 0)], [4, 1, 1, 1, 1, 1, 1, 1, 4], [0, 0.000051028, 0.000100976, 0.000150111, 0.000199057, 0.000248546, 0.000298667, 0.000350376, 0.000403993], False, 3, [1, 1, 1, 1, 1, 1, 1, 1, 1, 1, 1], False), False)
sketch3.addGeometry(Part.BSplineCurve([App.Vector(7.795087, 3.887028, 0), App.Vector(7.80903, 3.890939, 0), App.Vector(7.836389, 3.898614, 0), App.Vector(7.877545, 3.9065, 0), App.Vector(7.917712, 3.91137, 0), App.Vector(7.956953, 3.912996, 0), App.Vector(7.995255, 3.911451, 0), App.Vector(8.032589, 3.906637, 0), App.Vector(8.069054, 3.898844, 0), App.Vector(8.09249, 3.890963, 0), App.Vector(8.104192, 3.887028, 0)], [4, 1, 1, 1, 1, 1, 1, 1, 4], [0, 0.000043428, 0.000085214, 0.000125566, 0.000164714, 0.000202908, 0.000240419, 0.000277534, 0.000314546], False, 3, [1, 1, 1, 1, 1, 1, 1, 1, 1, 1, 1], False), False)
add_polygon(sketch3, [(7.304976, 5.357432), (7.144381, 5.594349), (5.843407, 4.713465), (6.011316, 4.465736), (6.864852, 5.043558), (6.388475, 3.908584), (6.549387, 3.670714), (7.850361, 4.551598), (7.68277, 4.799327), (6.826691, 4.219597)])
add_polygon(sketch3, [(6.344263, 6.460627), (6.124201, 6.669559), (4.602211, 5.946406), (4.827997, 5.732069), (5.14378, 5.878989), (5.609027, 5.437592), (5.475145, 5.117994), (5.700613, 4.903974)])
add_polygon(sketch3, [(5.94866, 6.261235), (5.72828, 5.726344), (5.425218, 6.013824)])
sketch3.addConstraint([
    Sketcher.Constraint("Block", 3),
    Sketcher.Constraint("Block", 4),
    Sketcher.Constraint("Block", 5),
    Sketcher.Constraint("Block", 6),
    Sketcher.Constraint("Block", 8),
    Sketcher.Constraint("Block", 9),
    Sketcher.Constraint("Block", 10),
    Sketcher.Constraint("Block", 11),
    Sketcher.Constraint("Block", 22),
    Sketcher.Constraint("Block", 23),
    Sketcher.Constraint("Block", 24),
    Sketcher.Constraint("Block", 26),
    Sketcher.Constraint("Block", 27),
    Sketcher.Constraint("Block", 28),
    Sketcher.Constraint("Block", 30),
    Sketcher.Constraint("Block", 31),
    Sketcher.Constraint("Block", 32),
    Sketcher.Constraint("Block", 33),
    Sketcher.Constraint("Block", 34),
    Sketcher.Constraint("Block", 35),
    Sketcher.Constraint("Block", 36),
    Sketcher.Constraint("Coincident", 0, 2, 1, 1),
    Sketcher.Constraint("Coincident", 1, 2, 2, 1),
    Sketcher.Constraint("Coincident", 2, 2, 3, 2),
    Sketcher.Constraint("Coincident", 6, 1, 7, 1),
    Sketcher.Constraint("Coincident", 7, 2, 8, 2),
    Sketcher.Constraint("Coincident", 11, 1, 12, 1),
    Sketcher.Constraint("Coincident", 12, 2, 13, 1),
    Sketcher.Constraint("Coincident", 13, 2, 14, 1),
    Sketcher.Constraint("Coincident", 14, 2, 0, 1),
    Sketcher.Constraint("Coincident", 21, 2, 22, 2),
    Sketcher.Constraint("Coincident", 24, 1, 25, 1),
    Sketcher.Constraint("Coincident", 25, 2, 26, 2),
    Sketcher.Constraint("Coincident", 28, 1, 29, 1),
    Sketcher.Constraint("Coincident", 29, 2, 30, 2),
    Sketcher.Constraint("Coincident", 36, 1, 21, 1),
    Sketcher.Constraint("DistanceX", 19, 2, 17, 2, Q("0.0467999 in")),
    Sketcher.Constraint("DistanceY", 42, 2, 39, 2, Q("0.0313001 in")),
    Sketcher.Constraint("DistanceY", 44, 2, 37, 2, Q("0.0313001 in")),
    Sketcher.Constraint("DistanceY", -1, 1, 43, 2, 4.551598),
    Sketcher.Constraint("DistanceX", -1, 1, 47, 2, 6.124201),
    Sketcher.Constraint("DistanceX", 2, 2, 1, 2, 0.035299),
    Sketcher.Constraint("DistanceY", 2, 2, 1, 2, 0.249001),
    Sketcher.Constraint("DistanceY", 12, 2, 2, 2, 0.118299),
    Sketcher.Constraint("DistanceX", 2, 2, 14, 2, 0.987099),
    Sketcher.Constraint("DistanceX", 1, 2, 16, 2, 0.296202),
    Sketcher.Constraint("DistanceY", 17, 2, 16, 2, 0.316101),
    Sketcher.Constraint("DistanceX", 17, 2, 0, 2, 0.517901),
    Sketcher.Constraint("DistanceX", 37, 2, 25, 2, 0.3769),
    Sketcher.Constraint("DistanceX", 45, 2, 29, 2, 0.290402),
    Sketcher.Constraint("DistanceY", 40, 2, 47, 2, 1.626001),
    Sketcher.Constraint("DistanceY", 52, 2, 51, 2, 0.319599),
    Sketcher.Constraint("DistanceX", 50, 2, 55, 2, 0.5845),
    Sketcher.Constraint("Distance", 13, 0.51683),
    Sketcher.Constraint("Distance", 14, 0.277879),
    Sketcher.Constraint("Distance", 15, 0.450432),
    Sketcher.Constraint("Distance", 39, 0.299271),
    Sketcher.Constraint("Distance", 40, 1.030729),
    Sketcher.Constraint("Distance", 46, 1.234272),
    Sketcher.Constraint("Distance", 49, 0.31132),
    Sketcher.Constraint("Distance", 53, 0.31087),
    Sketcher.Constraint("Distance", 55, 0.578512),
    Sketcher.Constraint("Distance", 56, 0.417722),
    Sketcher.Constraint("Distance", 57, 0.578968),
    Sketcher.Constraint("DistanceY", -1, 1, 0, 2, 0.974061),
    Sketcher.Constraint("DistanceX", -1, 1, 12, 2, 8.775778),
    Sketcher.Constraint("DistanceX", -1, 1, 13, 2, 8.817119),
    Sketcher.Constraint("DistanceY", -1, 1, 16, 2, 2.526421),
    Sketcher.Constraint("DistanceX", -1, 1, 18, 2, 7.25615),
    Sketcher.Constraint("DistanceX", -1, 1, 19, 2, 7.32802),
    Sketcher.Constraint("DistanceY", -1, 1, 19, 2, 1.608011),
    Sketcher.Constraint("DistanceX", -1, 1, 20, 2, 8.863048),
    Sketcher.Constraint("DistanceY", -1, 1, 37, 2, 5.594349),
    Sketcher.Constraint("DistanceX", -1, 1, 40, 2, 6.864852),
    Sketcher.Constraint("DistanceX", -1, 1, 43, 2, 7.850361),
    Sketcher.Constraint("DistanceX", -1, 1, 44, 2, 7.68277),
    Sketcher.Constraint("DistanceY", -1, 1, 47, 2, 6.669559),
    Sketcher.Constraint("DistanceX", -1, 1, 48, 2, 4.602211),
    Sketcher.Constraint("DistanceY", -1, 1, 49, 2, 5.732069),
    Sketcher.Constraint("DistanceX", -1, 1, 50, 2, 5.14378),
    Sketcher.Constraint("DistanceY", -1, 1, 50, 2, 5.878989),
    Sketcher.Constraint("DistanceX", -1, 1, 57, 2, 5.94866),
    Sketcher.Constraint("DistanceX", 1, 2, 15, 2, 0.612621),
    Sketcher.Constraint("DistanceY", 1, 2, 15, 2, 1.330389),
    Sketcher.Constraint("DistanceY", 7, 2, 18, 2, 0.70423),
    Sketcher.Constraint("DistanceY", 29, 2, 38, 2, 1.060491),
    Sketcher.Constraint("DistanceX", 38, 2, 21, 2, 2.069979),
    Sketcher.Constraint("DistanceX", 39, 2, 41, 2, 0.377158),
    Sketcher.Constraint("DistanceY", 41, 2, 39, 2, 0.557151),
    Sketcher.Constraint("DistanceX", 39, 2, 42, 2, 0.538071),
    Sketcher.Constraint("DistanceY", 45, 2, 40, 2, 0.823961),
    Sketcher.Constraint("DistanceY", 38, 2, 48, 2, 1.232942),
    Sketcher.Constraint("DistanceX", 51, 2, 38, 2, 0.234381),
    Sketcher.Constraint("DistanceX", 52, 2, 51, 2, 0.133882),
    Sketcher.Constraint("DistanceY", 38, 2, 52, 2, 0.404529),
    Sketcher.Constraint("DistanceY", 38, 2, 53, 2, 0.190509),
    Sketcher.Constraint("DistanceY", 54, 2, 47, 2, 0.208932),
    Sketcher.Constraint("DistanceX", 54, 2, 37, 2, 0.800118),
    Sketcher.Constraint("DistanceY", 52, 2, 55, 2, 0.608351),
    Sketcher.Constraint("Distance", 37, 0.286217),
])
pocket2 = body.newObject("PartDesign::Pocket", "Pocket001")
pocket2.Profile = sketch3
pocket2.Length = Q("0.001 in")

sketch4 = body.newObject("Sketcher::SketchObject", "Sketch003")
sketch4.AttachmentSupport = (doc.getObject("XY_Plane"), [""])
sketch4.MapMode = "FlatFace"
sketch4.addGeometry([
    Part.Circle(App.Vector(0, 0, 0), App.Vector(0, 0, 1), 13),
    Part.Circle(App.Vector(0, 0, 0), App.Vector(0, 0, 1), 11),
], False)
sketch4.addConstraint([
    Sketcher.Constraint("Coincident", 0, 3, -1, 1),
    Sketcher.Constraint("Coincident", 1, 3, -1, 1),
    Sketcher.Constraint("Diameter", 1, Q("0.875 in")),
    Sketcher.Constraint("Diameter", 0, 25.663219),
])
pocket3 = body.newObject("PartDesign::Pocket", "Pocket002")
pocket3.Profile = sketch4
pocket3.Length = Q("0.016 in")
pocket3.Reversed = True

doc.recompute()
